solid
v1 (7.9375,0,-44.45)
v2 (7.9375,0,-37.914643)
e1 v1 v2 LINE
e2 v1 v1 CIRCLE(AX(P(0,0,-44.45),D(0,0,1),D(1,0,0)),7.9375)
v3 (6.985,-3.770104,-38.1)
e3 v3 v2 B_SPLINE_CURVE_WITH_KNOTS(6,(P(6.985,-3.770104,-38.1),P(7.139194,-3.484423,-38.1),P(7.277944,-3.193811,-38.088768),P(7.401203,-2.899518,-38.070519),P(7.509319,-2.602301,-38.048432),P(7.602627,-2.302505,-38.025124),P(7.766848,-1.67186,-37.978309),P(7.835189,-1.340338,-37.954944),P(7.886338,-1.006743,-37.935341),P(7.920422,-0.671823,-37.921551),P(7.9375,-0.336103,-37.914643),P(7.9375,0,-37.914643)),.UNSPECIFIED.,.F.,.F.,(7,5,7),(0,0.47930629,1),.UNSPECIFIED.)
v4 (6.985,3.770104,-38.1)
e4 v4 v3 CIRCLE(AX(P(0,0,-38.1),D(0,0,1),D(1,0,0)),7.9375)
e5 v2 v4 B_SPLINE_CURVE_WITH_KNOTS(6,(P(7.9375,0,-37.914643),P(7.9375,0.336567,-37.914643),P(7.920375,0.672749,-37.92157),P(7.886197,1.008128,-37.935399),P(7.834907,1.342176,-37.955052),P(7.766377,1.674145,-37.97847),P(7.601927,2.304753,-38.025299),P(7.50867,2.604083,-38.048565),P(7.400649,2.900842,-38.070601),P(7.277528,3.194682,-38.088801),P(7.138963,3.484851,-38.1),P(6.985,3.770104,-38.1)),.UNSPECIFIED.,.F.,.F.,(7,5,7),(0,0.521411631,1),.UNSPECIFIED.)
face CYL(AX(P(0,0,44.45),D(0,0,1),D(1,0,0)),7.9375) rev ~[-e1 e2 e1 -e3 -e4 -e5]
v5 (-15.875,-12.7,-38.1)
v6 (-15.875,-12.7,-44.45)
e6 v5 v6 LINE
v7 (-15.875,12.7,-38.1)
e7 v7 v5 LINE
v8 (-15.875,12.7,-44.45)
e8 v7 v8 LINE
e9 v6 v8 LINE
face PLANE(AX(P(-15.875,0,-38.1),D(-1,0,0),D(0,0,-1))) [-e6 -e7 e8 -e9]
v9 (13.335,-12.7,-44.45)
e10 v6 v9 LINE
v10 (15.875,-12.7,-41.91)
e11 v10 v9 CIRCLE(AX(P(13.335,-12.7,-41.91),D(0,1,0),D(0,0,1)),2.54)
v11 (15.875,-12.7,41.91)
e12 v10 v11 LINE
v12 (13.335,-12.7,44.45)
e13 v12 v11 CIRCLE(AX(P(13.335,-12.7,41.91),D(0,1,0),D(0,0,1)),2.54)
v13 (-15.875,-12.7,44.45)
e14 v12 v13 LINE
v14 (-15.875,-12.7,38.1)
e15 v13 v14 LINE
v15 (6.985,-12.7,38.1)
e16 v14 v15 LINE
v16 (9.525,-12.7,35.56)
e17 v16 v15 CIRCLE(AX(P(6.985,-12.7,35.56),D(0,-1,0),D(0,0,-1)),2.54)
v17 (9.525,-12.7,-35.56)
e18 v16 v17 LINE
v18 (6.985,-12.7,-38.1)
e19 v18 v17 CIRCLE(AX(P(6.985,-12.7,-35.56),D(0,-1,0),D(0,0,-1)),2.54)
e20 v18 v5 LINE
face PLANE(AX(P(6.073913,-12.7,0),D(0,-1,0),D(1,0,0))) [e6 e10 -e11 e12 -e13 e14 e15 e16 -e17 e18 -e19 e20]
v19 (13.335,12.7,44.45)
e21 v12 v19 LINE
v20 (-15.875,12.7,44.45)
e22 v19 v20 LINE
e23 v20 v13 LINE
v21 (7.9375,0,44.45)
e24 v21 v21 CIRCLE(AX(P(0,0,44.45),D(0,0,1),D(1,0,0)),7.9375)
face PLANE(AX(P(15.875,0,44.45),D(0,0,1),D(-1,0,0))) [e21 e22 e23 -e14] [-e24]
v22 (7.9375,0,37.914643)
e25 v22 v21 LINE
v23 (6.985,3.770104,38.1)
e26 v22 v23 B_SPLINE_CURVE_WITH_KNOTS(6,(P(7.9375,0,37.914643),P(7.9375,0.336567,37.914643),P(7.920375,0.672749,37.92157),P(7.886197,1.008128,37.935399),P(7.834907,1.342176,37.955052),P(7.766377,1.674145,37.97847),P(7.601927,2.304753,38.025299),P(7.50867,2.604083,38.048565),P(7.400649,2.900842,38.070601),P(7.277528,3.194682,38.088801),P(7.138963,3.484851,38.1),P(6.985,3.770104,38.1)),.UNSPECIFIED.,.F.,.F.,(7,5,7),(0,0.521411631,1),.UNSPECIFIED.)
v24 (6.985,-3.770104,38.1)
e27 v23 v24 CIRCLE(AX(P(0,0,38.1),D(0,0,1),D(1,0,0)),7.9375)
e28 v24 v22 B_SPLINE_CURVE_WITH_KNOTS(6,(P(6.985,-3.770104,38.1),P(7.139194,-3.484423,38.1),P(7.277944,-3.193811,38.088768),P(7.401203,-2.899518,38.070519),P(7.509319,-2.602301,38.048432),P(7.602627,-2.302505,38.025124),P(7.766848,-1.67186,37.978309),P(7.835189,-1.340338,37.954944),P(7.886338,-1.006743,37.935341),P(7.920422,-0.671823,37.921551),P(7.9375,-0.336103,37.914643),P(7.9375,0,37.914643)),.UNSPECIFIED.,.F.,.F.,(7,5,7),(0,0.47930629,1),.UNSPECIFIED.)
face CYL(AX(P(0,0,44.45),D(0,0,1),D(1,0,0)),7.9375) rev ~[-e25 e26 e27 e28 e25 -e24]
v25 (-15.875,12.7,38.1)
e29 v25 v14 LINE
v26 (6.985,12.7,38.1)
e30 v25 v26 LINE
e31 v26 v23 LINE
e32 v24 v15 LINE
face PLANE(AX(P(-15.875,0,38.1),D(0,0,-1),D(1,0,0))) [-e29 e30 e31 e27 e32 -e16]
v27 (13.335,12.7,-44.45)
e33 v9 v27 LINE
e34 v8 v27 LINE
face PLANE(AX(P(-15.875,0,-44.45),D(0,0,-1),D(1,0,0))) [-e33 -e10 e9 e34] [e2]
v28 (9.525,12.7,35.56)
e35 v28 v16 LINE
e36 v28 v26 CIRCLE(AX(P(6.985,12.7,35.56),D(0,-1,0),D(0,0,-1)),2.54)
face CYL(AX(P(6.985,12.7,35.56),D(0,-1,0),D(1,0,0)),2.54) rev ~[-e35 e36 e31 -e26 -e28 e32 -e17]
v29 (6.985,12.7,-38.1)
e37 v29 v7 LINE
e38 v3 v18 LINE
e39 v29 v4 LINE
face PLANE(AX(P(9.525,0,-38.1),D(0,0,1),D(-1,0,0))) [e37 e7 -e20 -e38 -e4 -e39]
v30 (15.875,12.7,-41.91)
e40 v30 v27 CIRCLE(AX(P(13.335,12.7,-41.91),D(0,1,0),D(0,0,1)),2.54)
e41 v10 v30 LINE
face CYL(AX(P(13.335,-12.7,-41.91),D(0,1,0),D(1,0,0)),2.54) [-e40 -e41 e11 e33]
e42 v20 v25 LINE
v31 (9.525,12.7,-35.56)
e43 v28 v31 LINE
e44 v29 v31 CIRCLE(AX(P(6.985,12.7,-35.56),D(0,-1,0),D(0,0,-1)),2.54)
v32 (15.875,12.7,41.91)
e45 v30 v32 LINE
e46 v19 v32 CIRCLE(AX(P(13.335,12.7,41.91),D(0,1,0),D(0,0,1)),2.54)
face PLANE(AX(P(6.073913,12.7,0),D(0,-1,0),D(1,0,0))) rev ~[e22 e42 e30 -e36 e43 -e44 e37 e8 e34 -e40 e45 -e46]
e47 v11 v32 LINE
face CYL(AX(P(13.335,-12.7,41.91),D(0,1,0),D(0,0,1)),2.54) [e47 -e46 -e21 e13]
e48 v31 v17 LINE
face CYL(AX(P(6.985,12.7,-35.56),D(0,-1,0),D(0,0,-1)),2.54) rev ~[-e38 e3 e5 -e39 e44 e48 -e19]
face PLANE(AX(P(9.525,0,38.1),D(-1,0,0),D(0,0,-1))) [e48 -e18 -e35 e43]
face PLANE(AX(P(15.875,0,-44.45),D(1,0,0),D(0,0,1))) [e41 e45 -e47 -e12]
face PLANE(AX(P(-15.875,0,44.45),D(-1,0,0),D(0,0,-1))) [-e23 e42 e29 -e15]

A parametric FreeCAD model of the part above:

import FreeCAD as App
import Part
import Sketcher

V = App.Vector
Q = App.Units.Quantity


def edges_at(feature, points):
    """Names of the edges that pass closest to the given points."""
    edges = feature.Shape.Edges
    near = lambda p: min(range(len(edges)), key=lambda i: edges[i].distToShape(Part.Vertex(*p))[0])
    return sorted({f"Edge{near(p) + 1}" for p in points})

doc = App.newDocument("Part")
body = doc.addObject("PartDesign::Body", "Body")

# Sketch on XZ plane
sketch1 = body.newObject("Sketcher::SketchObject", "Sketch")
sketch1.AttachmentSupport = (doc.getObject("XZ_Plane"), [""])
sketch1.MapMode = "FlatFace"
sketch1.addGeometry([
    Part.LineSegment(V(15.875, 44.45, 0), V(-15.875, 44.45, 0)),  # 0
    Part.LineSegment(V(-15.875, 44.45, 0), V(-15.875, 38.1, 0)),  # 1
    Part.LineSegment(V(-15.875, 38.1, 0), V(9.525, 38.1, 0)),  # 2
    Part.LineSegment(V(9.525, 38.1, 0), V(9.525, -38.1, 0)),  # 3
    Part.LineSegment(V(9.525, -38.1, 0), V(-15.875, -38.1, 0)),  # 4
    Part.LineSegment(V(-15.875, -38.1, 0), V(-15.875, -44.45, 0)),  # 5
    Part.LineSegment(V(-15.875, -44.45, 0), V(15.875, -44.45, 0)),  # 6
    Part.LineSegment(V(15.875, -44.45, 0), V(15.875, 44.45, 0)),  # 7
], False)
sketch1.addConstraint([
    Sketcher.Constraint("Coincident", 0, 2, 1, 1),
    Sketcher.Constraint("Coincident", 1, 2, 2, 1),
    Sketcher.Constraint("Coincident", 2, 2, 3, 1),
    Sketcher.Constraint("Coincident", 3, 2, 4, 1),
    Sketcher.Constraint("Coincident", 4, 2, 5, 1),
    Sketcher.Constraint("Coincident", 5, 2, 6, 1),
    Sketcher.Constraint("Coincident", 6, 2, 7, 1),
    Sketcher.Constraint("Coincident", 7, 2, 0, 1),
    Sketcher.Constraint("Horizontal", 0),
    Sketcher.Constraint("Vertical", 1),
    Sketcher.Constraint("Horizontal", 2),
    Sketcher.Constraint("Vertical", 3),
    Sketcher.Constraint("Horizontal", 4),
    Sketcher.Constraint("Vertical", 5),
    Sketcher.Constraint("Horizontal", 6),
    Sketcher.Constraint("Vertical", 7),
    Sketcher.Constraint("Symmetric", 0, 2, 6, 2, -1, 1),
    Sketcher.Constraint("Symmetric", 1, 2, 4, 2, -1),
    Sketcher.Constraint("DistanceX", 2, 1, 2, 2, Q("1 in")),
    Sketcher.Constraint("DistanceY", 3, 2, 3, 1, Q("3 in")),
    Sketcher.Constraint("DistanceY", 7, 1, 7, 2, Q("3.5 in")),
    Sketcher.Constraint("DistanceX", 0, 2, 0, 1, Q("1.25 in")),
])
pad1 = body.newObject("PartDesign::Pad", "Pad")
pad1.Profile = sketch1
pad1.Length = Q("1 in")
pad1.Midplane = True
doc.recompute()

fillet = body.newObject("PartDesign::Fillet", "Fillet")
fillet.Base = (pad1, edges_at(pad1, [
    (15.875, 0, 44.45),
    (15.875, 0, -44.45),
    (9.525, 0, 38.1),
    (9.525, 0, -38.1),
]))
fillet.Radius = Q("0.1 in")

# Sketch on XY plane
sketch2 = body.newObject("Sketcher::SketchObject", "Sketch001")
sketch2.AttachmentSupport = (doc.getObject("XY_Plane"), [""])
sketch2.MapMode = "FlatFace"
sketch2.AttachmentOffset = App.Placement(V(0, 0, 1.75 * 25.4), App.Rotation())
sketch2.addGeometry(Part.Circle(V(0, 0, 0), V(0, 0, 1), 7.9375), False)
sketch2.addConstraint([
    Sketcher.Constraint("Coincident", 0, 3, -1, 1),
    Sketcher.Constraint("Diameter", 0, Q("0.625 in")),
])
pocket1 = body.newObject("PartDesign::Pocket", "Pocket")
pocket1.Profile = sketch2
pocket1.Length = Q("10 in")
pocket1.Midplane = True

doc.recompute()
